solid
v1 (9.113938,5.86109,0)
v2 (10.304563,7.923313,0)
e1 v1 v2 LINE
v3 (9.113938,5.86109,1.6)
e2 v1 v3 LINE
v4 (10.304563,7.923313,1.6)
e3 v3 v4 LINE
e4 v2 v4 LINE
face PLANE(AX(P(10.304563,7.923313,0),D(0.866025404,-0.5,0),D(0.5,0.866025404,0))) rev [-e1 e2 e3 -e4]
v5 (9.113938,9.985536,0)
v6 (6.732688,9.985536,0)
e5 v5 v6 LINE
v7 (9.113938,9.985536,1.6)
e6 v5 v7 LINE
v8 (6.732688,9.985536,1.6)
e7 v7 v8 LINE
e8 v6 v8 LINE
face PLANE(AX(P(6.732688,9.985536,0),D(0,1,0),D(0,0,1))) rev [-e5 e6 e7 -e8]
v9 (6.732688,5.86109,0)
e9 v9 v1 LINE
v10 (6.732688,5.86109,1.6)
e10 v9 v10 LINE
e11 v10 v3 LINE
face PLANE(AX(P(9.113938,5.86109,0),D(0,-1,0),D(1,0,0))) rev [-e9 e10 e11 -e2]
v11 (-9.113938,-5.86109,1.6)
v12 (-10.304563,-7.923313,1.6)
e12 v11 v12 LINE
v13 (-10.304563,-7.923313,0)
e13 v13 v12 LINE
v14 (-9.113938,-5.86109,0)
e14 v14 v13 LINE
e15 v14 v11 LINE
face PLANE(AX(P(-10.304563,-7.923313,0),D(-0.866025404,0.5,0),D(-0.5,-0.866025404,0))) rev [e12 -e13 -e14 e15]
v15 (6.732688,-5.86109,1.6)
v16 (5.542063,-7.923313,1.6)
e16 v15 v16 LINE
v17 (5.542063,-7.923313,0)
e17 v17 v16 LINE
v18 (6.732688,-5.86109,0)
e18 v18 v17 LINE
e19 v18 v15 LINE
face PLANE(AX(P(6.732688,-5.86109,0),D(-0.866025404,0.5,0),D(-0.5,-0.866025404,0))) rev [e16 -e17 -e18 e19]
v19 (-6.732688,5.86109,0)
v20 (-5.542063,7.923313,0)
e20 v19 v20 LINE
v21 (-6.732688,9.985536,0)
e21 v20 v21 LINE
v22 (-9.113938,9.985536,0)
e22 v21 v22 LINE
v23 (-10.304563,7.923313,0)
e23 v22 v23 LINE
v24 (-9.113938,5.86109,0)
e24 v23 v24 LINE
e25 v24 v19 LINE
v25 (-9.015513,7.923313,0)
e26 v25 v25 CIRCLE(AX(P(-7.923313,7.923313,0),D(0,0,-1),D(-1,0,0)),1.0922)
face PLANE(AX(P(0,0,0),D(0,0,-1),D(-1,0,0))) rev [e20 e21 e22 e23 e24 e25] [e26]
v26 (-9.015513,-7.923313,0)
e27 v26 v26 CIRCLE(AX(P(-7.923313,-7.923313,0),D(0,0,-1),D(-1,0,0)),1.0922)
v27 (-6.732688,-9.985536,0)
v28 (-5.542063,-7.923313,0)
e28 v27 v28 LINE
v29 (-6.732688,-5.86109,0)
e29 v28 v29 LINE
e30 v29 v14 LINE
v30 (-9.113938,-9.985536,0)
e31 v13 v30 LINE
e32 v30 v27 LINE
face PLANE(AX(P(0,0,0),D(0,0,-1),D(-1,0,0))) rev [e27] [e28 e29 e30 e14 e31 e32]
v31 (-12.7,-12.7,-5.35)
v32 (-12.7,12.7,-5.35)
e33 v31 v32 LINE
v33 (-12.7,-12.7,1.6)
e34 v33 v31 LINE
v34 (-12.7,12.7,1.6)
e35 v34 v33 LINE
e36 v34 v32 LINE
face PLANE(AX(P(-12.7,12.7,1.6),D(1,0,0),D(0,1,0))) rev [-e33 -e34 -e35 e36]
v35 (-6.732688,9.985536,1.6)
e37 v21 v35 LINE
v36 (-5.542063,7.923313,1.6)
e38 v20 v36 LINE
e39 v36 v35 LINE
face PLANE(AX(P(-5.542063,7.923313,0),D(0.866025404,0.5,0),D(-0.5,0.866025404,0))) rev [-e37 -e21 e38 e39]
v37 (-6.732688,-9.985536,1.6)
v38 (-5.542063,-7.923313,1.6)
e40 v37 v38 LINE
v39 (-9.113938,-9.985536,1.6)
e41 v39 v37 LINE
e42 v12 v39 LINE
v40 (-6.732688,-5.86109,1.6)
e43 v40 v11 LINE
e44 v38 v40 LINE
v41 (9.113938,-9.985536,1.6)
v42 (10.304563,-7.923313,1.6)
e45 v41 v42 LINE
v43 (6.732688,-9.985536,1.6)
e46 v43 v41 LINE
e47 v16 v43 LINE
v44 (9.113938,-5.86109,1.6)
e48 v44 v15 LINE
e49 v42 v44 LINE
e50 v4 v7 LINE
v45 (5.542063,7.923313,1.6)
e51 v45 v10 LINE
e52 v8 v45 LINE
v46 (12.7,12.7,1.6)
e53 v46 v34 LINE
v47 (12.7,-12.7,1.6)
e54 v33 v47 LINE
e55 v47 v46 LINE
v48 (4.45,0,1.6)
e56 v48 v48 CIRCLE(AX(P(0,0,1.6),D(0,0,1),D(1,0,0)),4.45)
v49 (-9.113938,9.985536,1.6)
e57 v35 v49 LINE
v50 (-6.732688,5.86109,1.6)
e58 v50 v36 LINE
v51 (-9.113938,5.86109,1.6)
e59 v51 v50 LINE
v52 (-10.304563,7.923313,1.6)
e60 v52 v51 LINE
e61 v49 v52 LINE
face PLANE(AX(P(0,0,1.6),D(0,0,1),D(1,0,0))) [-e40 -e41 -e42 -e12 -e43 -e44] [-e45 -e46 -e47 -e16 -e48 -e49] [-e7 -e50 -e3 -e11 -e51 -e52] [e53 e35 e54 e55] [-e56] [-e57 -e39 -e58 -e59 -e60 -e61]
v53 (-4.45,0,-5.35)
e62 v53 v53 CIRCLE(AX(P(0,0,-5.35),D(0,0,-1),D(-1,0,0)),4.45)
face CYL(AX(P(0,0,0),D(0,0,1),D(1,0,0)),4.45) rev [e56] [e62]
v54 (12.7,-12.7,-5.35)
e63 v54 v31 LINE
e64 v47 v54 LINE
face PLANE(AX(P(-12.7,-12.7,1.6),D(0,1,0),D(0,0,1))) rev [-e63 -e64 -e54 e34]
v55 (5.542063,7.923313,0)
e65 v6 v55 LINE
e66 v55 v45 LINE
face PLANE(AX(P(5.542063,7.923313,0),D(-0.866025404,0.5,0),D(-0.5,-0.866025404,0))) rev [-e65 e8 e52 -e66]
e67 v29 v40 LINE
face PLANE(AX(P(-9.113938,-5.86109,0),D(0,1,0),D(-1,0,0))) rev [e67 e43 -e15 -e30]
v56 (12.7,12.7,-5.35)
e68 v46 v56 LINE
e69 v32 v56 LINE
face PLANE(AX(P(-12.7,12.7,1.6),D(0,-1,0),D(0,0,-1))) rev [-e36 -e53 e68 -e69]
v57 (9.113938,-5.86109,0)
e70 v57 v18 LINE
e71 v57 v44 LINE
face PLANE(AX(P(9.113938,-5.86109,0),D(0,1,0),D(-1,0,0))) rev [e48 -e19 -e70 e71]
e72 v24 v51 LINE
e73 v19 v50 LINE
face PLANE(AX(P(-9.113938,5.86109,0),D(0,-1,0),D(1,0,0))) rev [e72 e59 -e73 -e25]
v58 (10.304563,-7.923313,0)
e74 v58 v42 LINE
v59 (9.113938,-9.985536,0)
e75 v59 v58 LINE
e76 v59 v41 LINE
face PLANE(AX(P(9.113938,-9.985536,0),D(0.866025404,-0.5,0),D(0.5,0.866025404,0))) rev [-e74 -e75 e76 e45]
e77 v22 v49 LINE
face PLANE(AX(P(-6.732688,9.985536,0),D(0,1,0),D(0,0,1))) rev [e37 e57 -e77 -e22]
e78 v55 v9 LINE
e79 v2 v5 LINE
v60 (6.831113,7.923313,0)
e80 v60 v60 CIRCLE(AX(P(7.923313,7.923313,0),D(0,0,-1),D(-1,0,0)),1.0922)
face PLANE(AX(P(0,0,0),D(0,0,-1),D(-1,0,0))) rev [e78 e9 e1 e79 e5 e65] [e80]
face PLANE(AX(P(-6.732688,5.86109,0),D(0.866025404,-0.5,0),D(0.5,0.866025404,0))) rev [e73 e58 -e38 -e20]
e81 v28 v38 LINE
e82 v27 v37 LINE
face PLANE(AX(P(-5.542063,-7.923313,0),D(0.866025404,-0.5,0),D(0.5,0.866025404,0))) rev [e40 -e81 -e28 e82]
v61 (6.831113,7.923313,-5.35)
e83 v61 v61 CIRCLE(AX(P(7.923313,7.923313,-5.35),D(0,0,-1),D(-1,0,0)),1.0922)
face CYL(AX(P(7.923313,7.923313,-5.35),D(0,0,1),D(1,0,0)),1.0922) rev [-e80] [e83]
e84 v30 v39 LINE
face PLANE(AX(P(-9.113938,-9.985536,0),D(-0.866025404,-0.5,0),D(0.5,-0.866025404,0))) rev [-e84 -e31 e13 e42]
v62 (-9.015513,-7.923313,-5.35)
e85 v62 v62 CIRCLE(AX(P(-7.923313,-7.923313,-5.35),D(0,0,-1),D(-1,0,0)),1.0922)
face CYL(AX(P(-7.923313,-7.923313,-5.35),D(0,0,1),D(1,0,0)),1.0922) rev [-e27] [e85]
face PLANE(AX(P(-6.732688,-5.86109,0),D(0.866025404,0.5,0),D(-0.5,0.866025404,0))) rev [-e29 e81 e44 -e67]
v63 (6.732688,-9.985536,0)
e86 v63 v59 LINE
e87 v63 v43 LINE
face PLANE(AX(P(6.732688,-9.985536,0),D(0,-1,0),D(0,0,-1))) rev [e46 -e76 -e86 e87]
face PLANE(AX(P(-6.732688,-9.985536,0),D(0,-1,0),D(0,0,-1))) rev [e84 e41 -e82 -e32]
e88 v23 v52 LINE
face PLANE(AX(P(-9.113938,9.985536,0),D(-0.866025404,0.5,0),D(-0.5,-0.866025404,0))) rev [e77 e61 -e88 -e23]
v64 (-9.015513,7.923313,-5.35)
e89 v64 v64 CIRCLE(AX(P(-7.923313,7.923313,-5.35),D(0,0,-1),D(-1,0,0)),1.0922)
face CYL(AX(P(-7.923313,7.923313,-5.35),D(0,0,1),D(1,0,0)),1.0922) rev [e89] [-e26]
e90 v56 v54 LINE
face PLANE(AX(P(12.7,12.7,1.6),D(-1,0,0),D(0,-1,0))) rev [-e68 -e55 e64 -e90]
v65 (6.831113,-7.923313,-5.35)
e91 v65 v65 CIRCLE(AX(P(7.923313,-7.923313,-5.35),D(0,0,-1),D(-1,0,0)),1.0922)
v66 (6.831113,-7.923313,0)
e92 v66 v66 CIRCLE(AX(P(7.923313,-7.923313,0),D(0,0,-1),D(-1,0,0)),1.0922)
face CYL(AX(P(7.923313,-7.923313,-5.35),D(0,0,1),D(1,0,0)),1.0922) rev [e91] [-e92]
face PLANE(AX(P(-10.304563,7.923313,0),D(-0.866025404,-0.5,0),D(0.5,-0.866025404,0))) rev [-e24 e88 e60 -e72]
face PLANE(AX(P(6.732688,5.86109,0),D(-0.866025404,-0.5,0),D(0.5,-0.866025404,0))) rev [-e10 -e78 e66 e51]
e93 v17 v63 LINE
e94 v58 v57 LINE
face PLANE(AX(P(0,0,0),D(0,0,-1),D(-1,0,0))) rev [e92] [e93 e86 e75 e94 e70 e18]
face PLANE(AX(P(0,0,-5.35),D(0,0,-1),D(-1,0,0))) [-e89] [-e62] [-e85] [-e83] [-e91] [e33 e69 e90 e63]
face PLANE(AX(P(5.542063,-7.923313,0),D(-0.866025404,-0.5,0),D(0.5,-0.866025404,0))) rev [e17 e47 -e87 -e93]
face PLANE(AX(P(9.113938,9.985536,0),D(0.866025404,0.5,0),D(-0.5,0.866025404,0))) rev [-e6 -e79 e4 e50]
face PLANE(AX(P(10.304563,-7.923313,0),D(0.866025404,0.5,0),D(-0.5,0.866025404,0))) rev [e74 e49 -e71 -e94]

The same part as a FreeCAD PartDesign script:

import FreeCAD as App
import Part
import Sketcher
Q = App.Units.Quantity


def add_polygon(sketch, points):
    """Adds a closed chain of lines whose ends are joined by coincident constraints."""
    first, n = sketch.GeometryCount, len(points)
    for a, b in zip(points, points[1:] + points[:1]):
        sketch.addGeometry(Part.LineSegment(App.Vector(*a, 0), App.Vector(*b, 0)), False)
    for i in range(n):
        sketch.addConstraint(Sketcher.Constraint("Coincident", first + i, 2, first + (i + 1) % n, 1))

doc = App.newDocument("Part")
body = doc.addObject("PartDesign::Body", "Body")

sketch1 = body.newObject("Sketcher::SketchObject", "Sketch")
sketch1.AttachmentSupport = (doc.getObject("XY_Plane"), [""])
sketch1.MapMode = "FlatFace"
add_polygon(sketch1, [(-12.7, 12.7), (-12.7, -12.7), (12.7, -12.7), (12.7, 12.7)])
sketch1.addConstraint([
    Sketcher.Constraint("Vertical", 0),
    Sketcher.Constraint("Horizontal", 1),
    Sketcher.Constraint("Vertical", 2),
    Sketcher.Constraint("Horizontal", 3),
    Sketcher.Constraint("Symmetric", 0, 2, 2, 2, -1, 1),
    Sketcher.Constraint("Equal", 3, 0),
    Sketcher.Constraint("DistanceX", 1, 1, 1, 2, Q("1 in")),
])
pad1 = body.newObject("PartDesign::Pad", "Pad")
pad1.Profile = sketch1
pad1.Length = 1.6

sketch2 = body.newObject("Sketcher::SketchObject", "Sketch001")
sketch2.AttachmentSupport = (doc.getObject("XY_Plane"), [""])
sketch2.MapMode = "FlatFace"
sketch2.AttachmentOffset = App.Placement(App.Vector(0, 0, 1.6), App.Rotation())
sketch2.addGeometry(Part.Circle(App.Vector(0, 0, 0), App.Vector(0, 0, 1), 4.45), False)
sketch2.addConstraint([
    Sketcher.Constraint("Coincident", 0, 3, -1, 1),
    Sketcher.Constraint("Diameter", 0, 8.9),
])
pocket1 = body.newObject("PartDesign::Pocket", "Pocket")
pocket1.Profile = sketch2
pocket1.Type = "ThroughAll"

sketch3 = body.newObject("Sketcher::SketchObject", "Sketch002")
sketch3.AttachmentSupport = (doc.getObject("XY_Plane"), [""])
sketch3.MapMode = "FlatFace"
sketch3.AttachmentOffset = App.Placement(App.Vector(0, 0, 1.6), App.Rotation())
add_polygon(sketch3, [(6.732688, 5.86109), (9.113938, 5.86109), (10.304563, 7.923313), (9.113938, 9.985536), (6.732688, 9.985536), (5.542063, 7.923313)])
add_polygon(sketch3, [(-6.732688, 5.86109), (-5.542063, 7.923313), (-6.732688, 9.985536), (-9.113938, 9.985536), (-10.304563, 7.923313), (-9.113938, 5.86109)])
add_polygon(sketch3, [(6.732688, -5.86109), (5.542063, -7.923313), (6.732688, -9.985536), (9.113938, -9.985536), (10.304563, -7.923313), (9.113938, -5.86109)])
add_polygon(sketch3, [(-6.732688, -5.86109), (-9.113938, -5.86109), (-10.304563, -7.923313), (-9.113938, -9.985536), (-6.732688, -9.985536), (-5.542063, -7.923313)])
sketch3.addConstraint([
    Sketcher.Constraint("Horizontal", 0),
    Sketcher.Constraint("Horizontal", 3),
    Sketcher.Constraint("Horizontal", 8),
    Sketcher.Constraint("Horizontal", 11),
    Sketcher.Constraint("Horizontal", 14),
    Sketcher.Constraint("Horizontal", 17),
    Sketcher.Constraint("Horizontal", 18),
    Sketcher.Constraint("Horizontal", 21),
    Sketcher.Constraint("Symmetric", 6, 2, 12, 2, -1, 1),
    Sketcher.Constraint("Symmetric", 7, 2, 13, 2, -1, 1),
    Sketcher.Constraint("Symmetric", 9, 2, 15, 2, -1, 1),
    Sketcher.Constraint("Symmetric", 10, 2, 16, 2, -1, 1),
    Sketcher.Constraint("Symmetric", 0, 2, 18, 2, -1, 1),
    Sketcher.Constraint("Symmetric", 1, 2, 19, 2, -1, 1),
    Sketcher.Constraint("Symmetric", 2, 2, 20, 2, -1, 1),
    Sketcher.Constraint("Symmetric", 4, 2, 22, 2, -1, 1),
    Sketcher.Constraint("Symmetric", 4, 2, 6, 2, -2),
    Sketcher.Constraint("Symmetric", 3, 2, 7, 2, -2),
    Sketcher.Constraint("Symmetric", 1, 2, 9, 2, -2),
    Sketcher.Constraint("Symmetric", 0, 2, 10, 2, -2),
    Sketcher.Constraint("Parallel", 1, 4),
    Sketcher.Constraint("Parallel", 2, 5),
    Sketcher.Constraint("Parallel", 4, 6),
    Sketcher.Constraint("Parallel", 5, 7),
    Sketcher.Constraint("Parallel", 6, 9),
    Sketcher.Constraint("Parallel", 9, 12),
    Sketcher.Constraint("Parallel", 12, 15),
    Sketcher.Constraint("Parallel", 19, 22),
    Sketcher.Constraint("Parallel", 20, 23),
    Sketcher.Constraint("Horizontal", 1, 2, 4, 2),
    Sketcher.Constraint("Vertical", 0, 2, 2, 2),
    Sketcher.Constraint("Angle", 1, Q("60 deg")),
    Sketcher.Constraint("DistanceX", 0, 1, 0, 2, Q("0.09375 in")),
    Sketcher.Constraint("Distance", 1, Q("0.09375 in")),
    Sketcher.Constraint("DistanceX", 6, 2, 0, 2, 14.656),
    Sketcher.Constraint("DistanceY", -1, 1, 0, 2, 5.86109),
])
pocket2 = body.newObject("PartDesign::Pocket", "Pocket001")
pocket2.Profile = sketch3
pocket2.Type = "ThroughAll"

sketch4 = body.newObject("Sketcher::SketchObject", "Sketch003")
sketch4.AttachmentSupport = (doc.getObject("XY_Plane"), [""])
sketch4.MapMode = "FlatFace"
add_polygon(sketch4, [(12.7, 12.7), (12.7, -12.7), (-12.7, -12.7), (-12.7, 12.7)])
sketch4.addGeometry(Part.Circle(App.Vector(7.923313, -7.923313, 0), App.Vector(0, 0, 1), 1.0922), False)
sketch4.addGeometry(Part.Circle(App.Vector(-7.923313, -7.923313, 0), App.Vector(0, 0, 1), 1.0922), False)
sketch4.addGeometry(Part.Circle(App.Vector(7.923313, 7.923313, 0), App.Vector(0, 0, 1), 1.0922), False)
sketch4.addGeometry(Part.Circle(App.Vector(0, 0, 0), App.Vector(0, 0, 1), 4.45), False)
sketch4.addGeometry(Part.Circle(App.Vector(-7.923313, 7.923313, 0), App.Vector(0, 0, 1), 1.0922), False)
sketch4.addConstraint([
    Sketcher.Constraint("Vertical", 0),
    Sketcher.Constraint("Horizontal", 1),
    Sketcher.Constraint("Vertical", 2),
    Sketcher.Constraint("Horizontal", 3),
    Sketcher.Constraint("Coincident", 7, 3, -1, 1),
    Sketcher.Constraint("Equal", 4, 5),
    Sketcher.Constraint("Equal", 5, 6),
    Sketcher.Constraint("Equal", 6, 8),
    Sketcher.Constraint("Symmetric", 5, 3, 6, 3, -1, 1),
    Sketcher.Constraint("Symmetric", 4, 3, 8, 3, -1, 1),
    Sketcher.Constraint("Symmetric", 0, 2, 2, 2, -1, 1),
    Sketcher.Constraint("Symmetric", 4, 3, 5, 3, -2),
    Sketcher.Constraint("Equal", 3, 0),
    Sketcher.Constraint("DistanceX", 1, 2, 1, 1, Q("1 in")),
    Sketcher.Constraint("Diameter", 4, Q("0.086 in")),
    Sketcher.Constraint("Diameter", 7, 8.9),
    Sketcher.Constraint("DistanceX", -1, 1, 4, 3, 7.923313),
    Sketcher.Constraint("DistanceY", 4, 3, -1, 1, 7.923313),
])
pad2 = body.newObject("PartDesign::Pad", "Pad001")
pad2.Profile = sketch4
pad2.Length = 5.35
pad2.Reversed = True

doc.recompute()
